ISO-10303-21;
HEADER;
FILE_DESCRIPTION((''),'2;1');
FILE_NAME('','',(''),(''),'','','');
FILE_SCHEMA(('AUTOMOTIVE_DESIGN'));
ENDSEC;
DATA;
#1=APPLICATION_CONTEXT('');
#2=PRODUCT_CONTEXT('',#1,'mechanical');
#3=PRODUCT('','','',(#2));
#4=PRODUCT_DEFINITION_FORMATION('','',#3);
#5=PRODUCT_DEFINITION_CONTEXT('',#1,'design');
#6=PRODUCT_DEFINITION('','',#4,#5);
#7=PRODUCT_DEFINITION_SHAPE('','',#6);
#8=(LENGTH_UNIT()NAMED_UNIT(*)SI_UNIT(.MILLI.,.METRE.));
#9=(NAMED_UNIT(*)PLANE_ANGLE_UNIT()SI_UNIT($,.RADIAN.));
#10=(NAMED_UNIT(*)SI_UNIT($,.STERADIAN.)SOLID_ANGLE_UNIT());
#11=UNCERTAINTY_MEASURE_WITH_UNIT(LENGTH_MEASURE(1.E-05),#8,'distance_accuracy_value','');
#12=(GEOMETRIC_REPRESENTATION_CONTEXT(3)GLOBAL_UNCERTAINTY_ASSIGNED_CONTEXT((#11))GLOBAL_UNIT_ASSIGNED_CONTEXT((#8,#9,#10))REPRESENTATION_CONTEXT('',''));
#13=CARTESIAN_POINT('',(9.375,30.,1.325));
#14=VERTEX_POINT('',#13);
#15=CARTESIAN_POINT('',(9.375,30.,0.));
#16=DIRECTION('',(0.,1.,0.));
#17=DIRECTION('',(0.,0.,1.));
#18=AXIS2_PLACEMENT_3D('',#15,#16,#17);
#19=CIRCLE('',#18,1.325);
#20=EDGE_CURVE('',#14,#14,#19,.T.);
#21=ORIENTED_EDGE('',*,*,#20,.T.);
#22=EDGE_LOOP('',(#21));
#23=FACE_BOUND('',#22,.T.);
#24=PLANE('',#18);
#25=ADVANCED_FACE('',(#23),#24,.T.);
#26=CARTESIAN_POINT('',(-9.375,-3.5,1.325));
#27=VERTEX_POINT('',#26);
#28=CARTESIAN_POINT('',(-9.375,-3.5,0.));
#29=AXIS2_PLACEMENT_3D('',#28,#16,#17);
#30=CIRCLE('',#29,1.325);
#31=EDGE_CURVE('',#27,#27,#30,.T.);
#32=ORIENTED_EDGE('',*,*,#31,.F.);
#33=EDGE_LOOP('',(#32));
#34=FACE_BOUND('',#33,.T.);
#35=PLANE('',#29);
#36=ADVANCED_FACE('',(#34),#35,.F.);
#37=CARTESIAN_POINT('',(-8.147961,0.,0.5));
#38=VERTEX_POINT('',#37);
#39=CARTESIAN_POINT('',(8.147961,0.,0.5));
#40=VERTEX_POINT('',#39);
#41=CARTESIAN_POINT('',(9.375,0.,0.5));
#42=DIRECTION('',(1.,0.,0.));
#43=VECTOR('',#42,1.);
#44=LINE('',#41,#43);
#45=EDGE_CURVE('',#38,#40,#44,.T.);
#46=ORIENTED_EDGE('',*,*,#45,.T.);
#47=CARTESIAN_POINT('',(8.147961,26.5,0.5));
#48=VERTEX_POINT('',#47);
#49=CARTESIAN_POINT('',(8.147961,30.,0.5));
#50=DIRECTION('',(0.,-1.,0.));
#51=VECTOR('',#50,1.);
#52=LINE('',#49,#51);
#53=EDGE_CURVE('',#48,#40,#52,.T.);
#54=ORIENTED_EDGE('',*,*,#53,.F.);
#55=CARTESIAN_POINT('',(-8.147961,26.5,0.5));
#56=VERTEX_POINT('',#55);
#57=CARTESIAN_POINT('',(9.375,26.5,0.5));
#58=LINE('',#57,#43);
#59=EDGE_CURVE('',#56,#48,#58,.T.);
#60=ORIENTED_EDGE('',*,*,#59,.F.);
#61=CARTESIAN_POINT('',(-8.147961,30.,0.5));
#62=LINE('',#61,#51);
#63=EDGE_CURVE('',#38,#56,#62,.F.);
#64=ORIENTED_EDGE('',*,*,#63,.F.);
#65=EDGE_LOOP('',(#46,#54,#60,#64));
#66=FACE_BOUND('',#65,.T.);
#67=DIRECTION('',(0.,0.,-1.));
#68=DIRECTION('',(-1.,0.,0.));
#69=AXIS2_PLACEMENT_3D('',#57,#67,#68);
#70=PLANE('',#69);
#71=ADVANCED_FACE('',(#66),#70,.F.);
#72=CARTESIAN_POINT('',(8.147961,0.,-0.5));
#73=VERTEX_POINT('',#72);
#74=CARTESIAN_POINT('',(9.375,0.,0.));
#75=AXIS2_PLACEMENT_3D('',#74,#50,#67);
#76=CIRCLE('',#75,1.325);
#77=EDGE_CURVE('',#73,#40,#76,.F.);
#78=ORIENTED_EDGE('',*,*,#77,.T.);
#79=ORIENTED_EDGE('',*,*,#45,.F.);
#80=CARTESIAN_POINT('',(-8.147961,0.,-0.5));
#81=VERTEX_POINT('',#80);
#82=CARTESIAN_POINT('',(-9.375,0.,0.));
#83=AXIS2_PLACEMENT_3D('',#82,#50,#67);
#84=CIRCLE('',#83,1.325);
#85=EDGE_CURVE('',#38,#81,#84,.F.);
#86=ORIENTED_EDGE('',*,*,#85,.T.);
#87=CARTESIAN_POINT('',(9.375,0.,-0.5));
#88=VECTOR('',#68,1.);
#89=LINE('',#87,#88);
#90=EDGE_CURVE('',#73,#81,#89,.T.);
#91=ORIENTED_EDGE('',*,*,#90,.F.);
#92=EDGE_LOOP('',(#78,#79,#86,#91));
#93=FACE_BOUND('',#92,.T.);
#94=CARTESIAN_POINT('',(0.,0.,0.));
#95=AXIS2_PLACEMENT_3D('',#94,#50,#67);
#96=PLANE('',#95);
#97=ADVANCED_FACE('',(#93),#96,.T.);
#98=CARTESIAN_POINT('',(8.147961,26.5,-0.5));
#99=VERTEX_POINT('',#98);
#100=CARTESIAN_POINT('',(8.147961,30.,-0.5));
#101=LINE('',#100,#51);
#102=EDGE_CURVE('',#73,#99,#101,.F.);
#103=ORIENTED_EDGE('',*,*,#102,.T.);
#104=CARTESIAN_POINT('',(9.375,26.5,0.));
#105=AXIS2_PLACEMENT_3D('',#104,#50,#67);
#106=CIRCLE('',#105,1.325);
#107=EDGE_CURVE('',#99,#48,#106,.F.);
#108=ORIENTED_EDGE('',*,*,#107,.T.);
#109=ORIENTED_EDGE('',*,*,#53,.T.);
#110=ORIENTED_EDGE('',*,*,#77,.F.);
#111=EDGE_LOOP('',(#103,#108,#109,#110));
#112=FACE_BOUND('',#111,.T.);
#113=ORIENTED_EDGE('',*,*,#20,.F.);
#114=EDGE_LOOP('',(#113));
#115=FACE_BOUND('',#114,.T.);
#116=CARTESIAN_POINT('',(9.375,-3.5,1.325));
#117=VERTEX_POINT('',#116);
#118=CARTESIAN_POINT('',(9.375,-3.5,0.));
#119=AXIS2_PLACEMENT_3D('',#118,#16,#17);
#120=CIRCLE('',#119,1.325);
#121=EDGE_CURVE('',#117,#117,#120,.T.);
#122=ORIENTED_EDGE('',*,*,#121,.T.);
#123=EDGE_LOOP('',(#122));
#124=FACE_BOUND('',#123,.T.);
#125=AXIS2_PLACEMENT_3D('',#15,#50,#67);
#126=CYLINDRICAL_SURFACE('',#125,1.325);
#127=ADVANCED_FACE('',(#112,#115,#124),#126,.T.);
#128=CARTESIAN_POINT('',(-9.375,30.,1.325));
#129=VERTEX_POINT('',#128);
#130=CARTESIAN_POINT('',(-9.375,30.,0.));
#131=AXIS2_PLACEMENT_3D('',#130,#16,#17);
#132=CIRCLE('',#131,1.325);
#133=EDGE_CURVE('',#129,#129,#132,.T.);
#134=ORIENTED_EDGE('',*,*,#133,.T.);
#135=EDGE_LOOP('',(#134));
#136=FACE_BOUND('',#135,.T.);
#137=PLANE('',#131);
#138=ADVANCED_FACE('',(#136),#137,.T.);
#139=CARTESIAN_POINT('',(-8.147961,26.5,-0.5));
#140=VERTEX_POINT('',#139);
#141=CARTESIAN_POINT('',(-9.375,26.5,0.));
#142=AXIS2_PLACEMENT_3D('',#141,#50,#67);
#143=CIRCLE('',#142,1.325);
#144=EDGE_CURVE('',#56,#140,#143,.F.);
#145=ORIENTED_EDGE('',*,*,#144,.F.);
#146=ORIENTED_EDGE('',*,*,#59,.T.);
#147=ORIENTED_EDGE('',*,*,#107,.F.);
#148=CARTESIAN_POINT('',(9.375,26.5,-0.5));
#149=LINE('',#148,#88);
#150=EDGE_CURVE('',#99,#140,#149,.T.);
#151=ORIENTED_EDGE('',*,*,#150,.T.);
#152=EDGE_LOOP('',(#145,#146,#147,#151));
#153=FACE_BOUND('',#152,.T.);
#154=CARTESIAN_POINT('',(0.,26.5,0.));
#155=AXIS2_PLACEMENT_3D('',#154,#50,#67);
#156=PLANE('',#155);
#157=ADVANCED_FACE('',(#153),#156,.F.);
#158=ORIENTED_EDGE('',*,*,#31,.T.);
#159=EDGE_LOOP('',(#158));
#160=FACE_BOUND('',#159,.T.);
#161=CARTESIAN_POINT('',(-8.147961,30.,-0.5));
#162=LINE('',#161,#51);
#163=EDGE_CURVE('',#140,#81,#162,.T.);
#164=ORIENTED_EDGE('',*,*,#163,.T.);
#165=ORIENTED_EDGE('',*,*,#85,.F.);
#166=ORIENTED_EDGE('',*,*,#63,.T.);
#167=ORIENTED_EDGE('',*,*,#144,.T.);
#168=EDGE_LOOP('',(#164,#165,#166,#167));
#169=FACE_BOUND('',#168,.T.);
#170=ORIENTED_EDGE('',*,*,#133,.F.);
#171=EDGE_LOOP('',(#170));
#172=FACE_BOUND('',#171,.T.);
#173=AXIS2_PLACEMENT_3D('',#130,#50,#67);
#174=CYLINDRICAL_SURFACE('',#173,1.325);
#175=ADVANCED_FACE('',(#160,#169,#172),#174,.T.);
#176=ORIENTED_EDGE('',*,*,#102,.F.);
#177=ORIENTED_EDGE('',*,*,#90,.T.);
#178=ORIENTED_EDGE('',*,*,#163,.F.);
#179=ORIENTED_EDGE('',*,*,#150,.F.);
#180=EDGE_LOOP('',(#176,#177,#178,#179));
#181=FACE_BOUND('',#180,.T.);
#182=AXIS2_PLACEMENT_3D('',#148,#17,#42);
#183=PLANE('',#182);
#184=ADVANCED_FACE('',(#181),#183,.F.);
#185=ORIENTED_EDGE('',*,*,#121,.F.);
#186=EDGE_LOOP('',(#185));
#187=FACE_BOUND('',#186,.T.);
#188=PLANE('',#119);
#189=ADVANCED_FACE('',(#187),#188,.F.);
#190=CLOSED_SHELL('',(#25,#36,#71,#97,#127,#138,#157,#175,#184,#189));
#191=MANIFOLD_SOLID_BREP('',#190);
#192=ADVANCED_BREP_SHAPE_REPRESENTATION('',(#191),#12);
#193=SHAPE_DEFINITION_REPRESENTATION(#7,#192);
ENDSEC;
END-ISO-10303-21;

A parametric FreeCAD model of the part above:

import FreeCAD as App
import Part
import Sketcher
Q = App.Units.Quantity


def add_polygon(sketch, points):
    """Adds a closed chain of lines whose ends are joined by coincident constraints."""
    first, n = sketch.GeometryCount, len(points)
    for a, b in zip(points, points[1:] + points[:1]):
        sketch.addGeometry(Part.LineSegment(App.Vector(*a, 0), App.Vector(*b, 0)), False)
    for i in range(n):
        sketch.addConstraint(Sketcher.Constraint("Coincident", first + i, 2, first + (i + 1) % n, 1))

doc = App.newDocument("Part")
body = doc.addObject("PartDesign::Body", "Body")

sketch1 = body.newObject("Sketcher::SketchObject", "Sketch")
sketch1.AttachmentSupport = (doc.getObject("XZ_Plane"), [""])
sketch1.MapMode = "FlatFace"
add_polygon(sketch1, [(-9.4, -0.5), (-9.4, 0.5), (9.4, 0.5), (9.4, -0.5)])
sketch1.addConstraint([
    Sketcher.Constraint("Vertical", 0),
    Sketcher.Constraint("Horizontal", 1),
    Sketcher.Constraint("Vertical", 2),
    Sketcher.Constraint("Horizontal", 3),
    Sketcher.Constraint("Symmetric", 0, 2, 2, 2, -1, 1),
    Sketcher.Constraint("DistanceY", 0, 1, 0, 2, Q("1 mm")),
    Sketcher.Constraint("DistanceX", 1, 1, 1, 2, Q("18.75 mm")),
])
pad1 = body.newObject("PartDesign::Pad", "Pad")
pad1.Profile = sketch1
pad1.Length = 26.5
pad1.Reversed = True

sketch2 = body.newObject("Sketcher::SketchObject", "Sketch001")
sketch2.AttachmentSupport = (doc.getObject("XZ_Plane"), [""])
sketch2.MapMode = "FlatFace"
sketch2.AttachmentOffset = App.Placement(App.Vector(0, 0, -13.25), App.Rotation())
sketch2.addGeometry([
    Part.Circle(App.Vector(-9.4, 0, 0), App.Vector(0, 0, 1), 1.3),
    Part.Circle(App.Vector(9.4, 0, 0), App.Vector(0, 0, 1), 1.3),
], False)
sketch2.addConstraint([
    Sketcher.Constraint("Equal", 0, 1),
    Sketcher.Constraint("Symmetric", 0, 3, 1, 3, -1, 1),
    Sketcher.Constraint("PointOnObject", 0, 3, -1),
    Sketcher.Constraint("Diameter", 0, Q("2.65 mm")),
    Sketcher.Constraint("DistanceX", 0, 3, 1, 3, Q("18.75 mm")),
])
pad2 = body.newObject("PartDesign::Pad", "Pad001")
pad2.Profile = sketch2
pad2.Length = 33.5
pad2.Midplane = True

doc.recompute()
